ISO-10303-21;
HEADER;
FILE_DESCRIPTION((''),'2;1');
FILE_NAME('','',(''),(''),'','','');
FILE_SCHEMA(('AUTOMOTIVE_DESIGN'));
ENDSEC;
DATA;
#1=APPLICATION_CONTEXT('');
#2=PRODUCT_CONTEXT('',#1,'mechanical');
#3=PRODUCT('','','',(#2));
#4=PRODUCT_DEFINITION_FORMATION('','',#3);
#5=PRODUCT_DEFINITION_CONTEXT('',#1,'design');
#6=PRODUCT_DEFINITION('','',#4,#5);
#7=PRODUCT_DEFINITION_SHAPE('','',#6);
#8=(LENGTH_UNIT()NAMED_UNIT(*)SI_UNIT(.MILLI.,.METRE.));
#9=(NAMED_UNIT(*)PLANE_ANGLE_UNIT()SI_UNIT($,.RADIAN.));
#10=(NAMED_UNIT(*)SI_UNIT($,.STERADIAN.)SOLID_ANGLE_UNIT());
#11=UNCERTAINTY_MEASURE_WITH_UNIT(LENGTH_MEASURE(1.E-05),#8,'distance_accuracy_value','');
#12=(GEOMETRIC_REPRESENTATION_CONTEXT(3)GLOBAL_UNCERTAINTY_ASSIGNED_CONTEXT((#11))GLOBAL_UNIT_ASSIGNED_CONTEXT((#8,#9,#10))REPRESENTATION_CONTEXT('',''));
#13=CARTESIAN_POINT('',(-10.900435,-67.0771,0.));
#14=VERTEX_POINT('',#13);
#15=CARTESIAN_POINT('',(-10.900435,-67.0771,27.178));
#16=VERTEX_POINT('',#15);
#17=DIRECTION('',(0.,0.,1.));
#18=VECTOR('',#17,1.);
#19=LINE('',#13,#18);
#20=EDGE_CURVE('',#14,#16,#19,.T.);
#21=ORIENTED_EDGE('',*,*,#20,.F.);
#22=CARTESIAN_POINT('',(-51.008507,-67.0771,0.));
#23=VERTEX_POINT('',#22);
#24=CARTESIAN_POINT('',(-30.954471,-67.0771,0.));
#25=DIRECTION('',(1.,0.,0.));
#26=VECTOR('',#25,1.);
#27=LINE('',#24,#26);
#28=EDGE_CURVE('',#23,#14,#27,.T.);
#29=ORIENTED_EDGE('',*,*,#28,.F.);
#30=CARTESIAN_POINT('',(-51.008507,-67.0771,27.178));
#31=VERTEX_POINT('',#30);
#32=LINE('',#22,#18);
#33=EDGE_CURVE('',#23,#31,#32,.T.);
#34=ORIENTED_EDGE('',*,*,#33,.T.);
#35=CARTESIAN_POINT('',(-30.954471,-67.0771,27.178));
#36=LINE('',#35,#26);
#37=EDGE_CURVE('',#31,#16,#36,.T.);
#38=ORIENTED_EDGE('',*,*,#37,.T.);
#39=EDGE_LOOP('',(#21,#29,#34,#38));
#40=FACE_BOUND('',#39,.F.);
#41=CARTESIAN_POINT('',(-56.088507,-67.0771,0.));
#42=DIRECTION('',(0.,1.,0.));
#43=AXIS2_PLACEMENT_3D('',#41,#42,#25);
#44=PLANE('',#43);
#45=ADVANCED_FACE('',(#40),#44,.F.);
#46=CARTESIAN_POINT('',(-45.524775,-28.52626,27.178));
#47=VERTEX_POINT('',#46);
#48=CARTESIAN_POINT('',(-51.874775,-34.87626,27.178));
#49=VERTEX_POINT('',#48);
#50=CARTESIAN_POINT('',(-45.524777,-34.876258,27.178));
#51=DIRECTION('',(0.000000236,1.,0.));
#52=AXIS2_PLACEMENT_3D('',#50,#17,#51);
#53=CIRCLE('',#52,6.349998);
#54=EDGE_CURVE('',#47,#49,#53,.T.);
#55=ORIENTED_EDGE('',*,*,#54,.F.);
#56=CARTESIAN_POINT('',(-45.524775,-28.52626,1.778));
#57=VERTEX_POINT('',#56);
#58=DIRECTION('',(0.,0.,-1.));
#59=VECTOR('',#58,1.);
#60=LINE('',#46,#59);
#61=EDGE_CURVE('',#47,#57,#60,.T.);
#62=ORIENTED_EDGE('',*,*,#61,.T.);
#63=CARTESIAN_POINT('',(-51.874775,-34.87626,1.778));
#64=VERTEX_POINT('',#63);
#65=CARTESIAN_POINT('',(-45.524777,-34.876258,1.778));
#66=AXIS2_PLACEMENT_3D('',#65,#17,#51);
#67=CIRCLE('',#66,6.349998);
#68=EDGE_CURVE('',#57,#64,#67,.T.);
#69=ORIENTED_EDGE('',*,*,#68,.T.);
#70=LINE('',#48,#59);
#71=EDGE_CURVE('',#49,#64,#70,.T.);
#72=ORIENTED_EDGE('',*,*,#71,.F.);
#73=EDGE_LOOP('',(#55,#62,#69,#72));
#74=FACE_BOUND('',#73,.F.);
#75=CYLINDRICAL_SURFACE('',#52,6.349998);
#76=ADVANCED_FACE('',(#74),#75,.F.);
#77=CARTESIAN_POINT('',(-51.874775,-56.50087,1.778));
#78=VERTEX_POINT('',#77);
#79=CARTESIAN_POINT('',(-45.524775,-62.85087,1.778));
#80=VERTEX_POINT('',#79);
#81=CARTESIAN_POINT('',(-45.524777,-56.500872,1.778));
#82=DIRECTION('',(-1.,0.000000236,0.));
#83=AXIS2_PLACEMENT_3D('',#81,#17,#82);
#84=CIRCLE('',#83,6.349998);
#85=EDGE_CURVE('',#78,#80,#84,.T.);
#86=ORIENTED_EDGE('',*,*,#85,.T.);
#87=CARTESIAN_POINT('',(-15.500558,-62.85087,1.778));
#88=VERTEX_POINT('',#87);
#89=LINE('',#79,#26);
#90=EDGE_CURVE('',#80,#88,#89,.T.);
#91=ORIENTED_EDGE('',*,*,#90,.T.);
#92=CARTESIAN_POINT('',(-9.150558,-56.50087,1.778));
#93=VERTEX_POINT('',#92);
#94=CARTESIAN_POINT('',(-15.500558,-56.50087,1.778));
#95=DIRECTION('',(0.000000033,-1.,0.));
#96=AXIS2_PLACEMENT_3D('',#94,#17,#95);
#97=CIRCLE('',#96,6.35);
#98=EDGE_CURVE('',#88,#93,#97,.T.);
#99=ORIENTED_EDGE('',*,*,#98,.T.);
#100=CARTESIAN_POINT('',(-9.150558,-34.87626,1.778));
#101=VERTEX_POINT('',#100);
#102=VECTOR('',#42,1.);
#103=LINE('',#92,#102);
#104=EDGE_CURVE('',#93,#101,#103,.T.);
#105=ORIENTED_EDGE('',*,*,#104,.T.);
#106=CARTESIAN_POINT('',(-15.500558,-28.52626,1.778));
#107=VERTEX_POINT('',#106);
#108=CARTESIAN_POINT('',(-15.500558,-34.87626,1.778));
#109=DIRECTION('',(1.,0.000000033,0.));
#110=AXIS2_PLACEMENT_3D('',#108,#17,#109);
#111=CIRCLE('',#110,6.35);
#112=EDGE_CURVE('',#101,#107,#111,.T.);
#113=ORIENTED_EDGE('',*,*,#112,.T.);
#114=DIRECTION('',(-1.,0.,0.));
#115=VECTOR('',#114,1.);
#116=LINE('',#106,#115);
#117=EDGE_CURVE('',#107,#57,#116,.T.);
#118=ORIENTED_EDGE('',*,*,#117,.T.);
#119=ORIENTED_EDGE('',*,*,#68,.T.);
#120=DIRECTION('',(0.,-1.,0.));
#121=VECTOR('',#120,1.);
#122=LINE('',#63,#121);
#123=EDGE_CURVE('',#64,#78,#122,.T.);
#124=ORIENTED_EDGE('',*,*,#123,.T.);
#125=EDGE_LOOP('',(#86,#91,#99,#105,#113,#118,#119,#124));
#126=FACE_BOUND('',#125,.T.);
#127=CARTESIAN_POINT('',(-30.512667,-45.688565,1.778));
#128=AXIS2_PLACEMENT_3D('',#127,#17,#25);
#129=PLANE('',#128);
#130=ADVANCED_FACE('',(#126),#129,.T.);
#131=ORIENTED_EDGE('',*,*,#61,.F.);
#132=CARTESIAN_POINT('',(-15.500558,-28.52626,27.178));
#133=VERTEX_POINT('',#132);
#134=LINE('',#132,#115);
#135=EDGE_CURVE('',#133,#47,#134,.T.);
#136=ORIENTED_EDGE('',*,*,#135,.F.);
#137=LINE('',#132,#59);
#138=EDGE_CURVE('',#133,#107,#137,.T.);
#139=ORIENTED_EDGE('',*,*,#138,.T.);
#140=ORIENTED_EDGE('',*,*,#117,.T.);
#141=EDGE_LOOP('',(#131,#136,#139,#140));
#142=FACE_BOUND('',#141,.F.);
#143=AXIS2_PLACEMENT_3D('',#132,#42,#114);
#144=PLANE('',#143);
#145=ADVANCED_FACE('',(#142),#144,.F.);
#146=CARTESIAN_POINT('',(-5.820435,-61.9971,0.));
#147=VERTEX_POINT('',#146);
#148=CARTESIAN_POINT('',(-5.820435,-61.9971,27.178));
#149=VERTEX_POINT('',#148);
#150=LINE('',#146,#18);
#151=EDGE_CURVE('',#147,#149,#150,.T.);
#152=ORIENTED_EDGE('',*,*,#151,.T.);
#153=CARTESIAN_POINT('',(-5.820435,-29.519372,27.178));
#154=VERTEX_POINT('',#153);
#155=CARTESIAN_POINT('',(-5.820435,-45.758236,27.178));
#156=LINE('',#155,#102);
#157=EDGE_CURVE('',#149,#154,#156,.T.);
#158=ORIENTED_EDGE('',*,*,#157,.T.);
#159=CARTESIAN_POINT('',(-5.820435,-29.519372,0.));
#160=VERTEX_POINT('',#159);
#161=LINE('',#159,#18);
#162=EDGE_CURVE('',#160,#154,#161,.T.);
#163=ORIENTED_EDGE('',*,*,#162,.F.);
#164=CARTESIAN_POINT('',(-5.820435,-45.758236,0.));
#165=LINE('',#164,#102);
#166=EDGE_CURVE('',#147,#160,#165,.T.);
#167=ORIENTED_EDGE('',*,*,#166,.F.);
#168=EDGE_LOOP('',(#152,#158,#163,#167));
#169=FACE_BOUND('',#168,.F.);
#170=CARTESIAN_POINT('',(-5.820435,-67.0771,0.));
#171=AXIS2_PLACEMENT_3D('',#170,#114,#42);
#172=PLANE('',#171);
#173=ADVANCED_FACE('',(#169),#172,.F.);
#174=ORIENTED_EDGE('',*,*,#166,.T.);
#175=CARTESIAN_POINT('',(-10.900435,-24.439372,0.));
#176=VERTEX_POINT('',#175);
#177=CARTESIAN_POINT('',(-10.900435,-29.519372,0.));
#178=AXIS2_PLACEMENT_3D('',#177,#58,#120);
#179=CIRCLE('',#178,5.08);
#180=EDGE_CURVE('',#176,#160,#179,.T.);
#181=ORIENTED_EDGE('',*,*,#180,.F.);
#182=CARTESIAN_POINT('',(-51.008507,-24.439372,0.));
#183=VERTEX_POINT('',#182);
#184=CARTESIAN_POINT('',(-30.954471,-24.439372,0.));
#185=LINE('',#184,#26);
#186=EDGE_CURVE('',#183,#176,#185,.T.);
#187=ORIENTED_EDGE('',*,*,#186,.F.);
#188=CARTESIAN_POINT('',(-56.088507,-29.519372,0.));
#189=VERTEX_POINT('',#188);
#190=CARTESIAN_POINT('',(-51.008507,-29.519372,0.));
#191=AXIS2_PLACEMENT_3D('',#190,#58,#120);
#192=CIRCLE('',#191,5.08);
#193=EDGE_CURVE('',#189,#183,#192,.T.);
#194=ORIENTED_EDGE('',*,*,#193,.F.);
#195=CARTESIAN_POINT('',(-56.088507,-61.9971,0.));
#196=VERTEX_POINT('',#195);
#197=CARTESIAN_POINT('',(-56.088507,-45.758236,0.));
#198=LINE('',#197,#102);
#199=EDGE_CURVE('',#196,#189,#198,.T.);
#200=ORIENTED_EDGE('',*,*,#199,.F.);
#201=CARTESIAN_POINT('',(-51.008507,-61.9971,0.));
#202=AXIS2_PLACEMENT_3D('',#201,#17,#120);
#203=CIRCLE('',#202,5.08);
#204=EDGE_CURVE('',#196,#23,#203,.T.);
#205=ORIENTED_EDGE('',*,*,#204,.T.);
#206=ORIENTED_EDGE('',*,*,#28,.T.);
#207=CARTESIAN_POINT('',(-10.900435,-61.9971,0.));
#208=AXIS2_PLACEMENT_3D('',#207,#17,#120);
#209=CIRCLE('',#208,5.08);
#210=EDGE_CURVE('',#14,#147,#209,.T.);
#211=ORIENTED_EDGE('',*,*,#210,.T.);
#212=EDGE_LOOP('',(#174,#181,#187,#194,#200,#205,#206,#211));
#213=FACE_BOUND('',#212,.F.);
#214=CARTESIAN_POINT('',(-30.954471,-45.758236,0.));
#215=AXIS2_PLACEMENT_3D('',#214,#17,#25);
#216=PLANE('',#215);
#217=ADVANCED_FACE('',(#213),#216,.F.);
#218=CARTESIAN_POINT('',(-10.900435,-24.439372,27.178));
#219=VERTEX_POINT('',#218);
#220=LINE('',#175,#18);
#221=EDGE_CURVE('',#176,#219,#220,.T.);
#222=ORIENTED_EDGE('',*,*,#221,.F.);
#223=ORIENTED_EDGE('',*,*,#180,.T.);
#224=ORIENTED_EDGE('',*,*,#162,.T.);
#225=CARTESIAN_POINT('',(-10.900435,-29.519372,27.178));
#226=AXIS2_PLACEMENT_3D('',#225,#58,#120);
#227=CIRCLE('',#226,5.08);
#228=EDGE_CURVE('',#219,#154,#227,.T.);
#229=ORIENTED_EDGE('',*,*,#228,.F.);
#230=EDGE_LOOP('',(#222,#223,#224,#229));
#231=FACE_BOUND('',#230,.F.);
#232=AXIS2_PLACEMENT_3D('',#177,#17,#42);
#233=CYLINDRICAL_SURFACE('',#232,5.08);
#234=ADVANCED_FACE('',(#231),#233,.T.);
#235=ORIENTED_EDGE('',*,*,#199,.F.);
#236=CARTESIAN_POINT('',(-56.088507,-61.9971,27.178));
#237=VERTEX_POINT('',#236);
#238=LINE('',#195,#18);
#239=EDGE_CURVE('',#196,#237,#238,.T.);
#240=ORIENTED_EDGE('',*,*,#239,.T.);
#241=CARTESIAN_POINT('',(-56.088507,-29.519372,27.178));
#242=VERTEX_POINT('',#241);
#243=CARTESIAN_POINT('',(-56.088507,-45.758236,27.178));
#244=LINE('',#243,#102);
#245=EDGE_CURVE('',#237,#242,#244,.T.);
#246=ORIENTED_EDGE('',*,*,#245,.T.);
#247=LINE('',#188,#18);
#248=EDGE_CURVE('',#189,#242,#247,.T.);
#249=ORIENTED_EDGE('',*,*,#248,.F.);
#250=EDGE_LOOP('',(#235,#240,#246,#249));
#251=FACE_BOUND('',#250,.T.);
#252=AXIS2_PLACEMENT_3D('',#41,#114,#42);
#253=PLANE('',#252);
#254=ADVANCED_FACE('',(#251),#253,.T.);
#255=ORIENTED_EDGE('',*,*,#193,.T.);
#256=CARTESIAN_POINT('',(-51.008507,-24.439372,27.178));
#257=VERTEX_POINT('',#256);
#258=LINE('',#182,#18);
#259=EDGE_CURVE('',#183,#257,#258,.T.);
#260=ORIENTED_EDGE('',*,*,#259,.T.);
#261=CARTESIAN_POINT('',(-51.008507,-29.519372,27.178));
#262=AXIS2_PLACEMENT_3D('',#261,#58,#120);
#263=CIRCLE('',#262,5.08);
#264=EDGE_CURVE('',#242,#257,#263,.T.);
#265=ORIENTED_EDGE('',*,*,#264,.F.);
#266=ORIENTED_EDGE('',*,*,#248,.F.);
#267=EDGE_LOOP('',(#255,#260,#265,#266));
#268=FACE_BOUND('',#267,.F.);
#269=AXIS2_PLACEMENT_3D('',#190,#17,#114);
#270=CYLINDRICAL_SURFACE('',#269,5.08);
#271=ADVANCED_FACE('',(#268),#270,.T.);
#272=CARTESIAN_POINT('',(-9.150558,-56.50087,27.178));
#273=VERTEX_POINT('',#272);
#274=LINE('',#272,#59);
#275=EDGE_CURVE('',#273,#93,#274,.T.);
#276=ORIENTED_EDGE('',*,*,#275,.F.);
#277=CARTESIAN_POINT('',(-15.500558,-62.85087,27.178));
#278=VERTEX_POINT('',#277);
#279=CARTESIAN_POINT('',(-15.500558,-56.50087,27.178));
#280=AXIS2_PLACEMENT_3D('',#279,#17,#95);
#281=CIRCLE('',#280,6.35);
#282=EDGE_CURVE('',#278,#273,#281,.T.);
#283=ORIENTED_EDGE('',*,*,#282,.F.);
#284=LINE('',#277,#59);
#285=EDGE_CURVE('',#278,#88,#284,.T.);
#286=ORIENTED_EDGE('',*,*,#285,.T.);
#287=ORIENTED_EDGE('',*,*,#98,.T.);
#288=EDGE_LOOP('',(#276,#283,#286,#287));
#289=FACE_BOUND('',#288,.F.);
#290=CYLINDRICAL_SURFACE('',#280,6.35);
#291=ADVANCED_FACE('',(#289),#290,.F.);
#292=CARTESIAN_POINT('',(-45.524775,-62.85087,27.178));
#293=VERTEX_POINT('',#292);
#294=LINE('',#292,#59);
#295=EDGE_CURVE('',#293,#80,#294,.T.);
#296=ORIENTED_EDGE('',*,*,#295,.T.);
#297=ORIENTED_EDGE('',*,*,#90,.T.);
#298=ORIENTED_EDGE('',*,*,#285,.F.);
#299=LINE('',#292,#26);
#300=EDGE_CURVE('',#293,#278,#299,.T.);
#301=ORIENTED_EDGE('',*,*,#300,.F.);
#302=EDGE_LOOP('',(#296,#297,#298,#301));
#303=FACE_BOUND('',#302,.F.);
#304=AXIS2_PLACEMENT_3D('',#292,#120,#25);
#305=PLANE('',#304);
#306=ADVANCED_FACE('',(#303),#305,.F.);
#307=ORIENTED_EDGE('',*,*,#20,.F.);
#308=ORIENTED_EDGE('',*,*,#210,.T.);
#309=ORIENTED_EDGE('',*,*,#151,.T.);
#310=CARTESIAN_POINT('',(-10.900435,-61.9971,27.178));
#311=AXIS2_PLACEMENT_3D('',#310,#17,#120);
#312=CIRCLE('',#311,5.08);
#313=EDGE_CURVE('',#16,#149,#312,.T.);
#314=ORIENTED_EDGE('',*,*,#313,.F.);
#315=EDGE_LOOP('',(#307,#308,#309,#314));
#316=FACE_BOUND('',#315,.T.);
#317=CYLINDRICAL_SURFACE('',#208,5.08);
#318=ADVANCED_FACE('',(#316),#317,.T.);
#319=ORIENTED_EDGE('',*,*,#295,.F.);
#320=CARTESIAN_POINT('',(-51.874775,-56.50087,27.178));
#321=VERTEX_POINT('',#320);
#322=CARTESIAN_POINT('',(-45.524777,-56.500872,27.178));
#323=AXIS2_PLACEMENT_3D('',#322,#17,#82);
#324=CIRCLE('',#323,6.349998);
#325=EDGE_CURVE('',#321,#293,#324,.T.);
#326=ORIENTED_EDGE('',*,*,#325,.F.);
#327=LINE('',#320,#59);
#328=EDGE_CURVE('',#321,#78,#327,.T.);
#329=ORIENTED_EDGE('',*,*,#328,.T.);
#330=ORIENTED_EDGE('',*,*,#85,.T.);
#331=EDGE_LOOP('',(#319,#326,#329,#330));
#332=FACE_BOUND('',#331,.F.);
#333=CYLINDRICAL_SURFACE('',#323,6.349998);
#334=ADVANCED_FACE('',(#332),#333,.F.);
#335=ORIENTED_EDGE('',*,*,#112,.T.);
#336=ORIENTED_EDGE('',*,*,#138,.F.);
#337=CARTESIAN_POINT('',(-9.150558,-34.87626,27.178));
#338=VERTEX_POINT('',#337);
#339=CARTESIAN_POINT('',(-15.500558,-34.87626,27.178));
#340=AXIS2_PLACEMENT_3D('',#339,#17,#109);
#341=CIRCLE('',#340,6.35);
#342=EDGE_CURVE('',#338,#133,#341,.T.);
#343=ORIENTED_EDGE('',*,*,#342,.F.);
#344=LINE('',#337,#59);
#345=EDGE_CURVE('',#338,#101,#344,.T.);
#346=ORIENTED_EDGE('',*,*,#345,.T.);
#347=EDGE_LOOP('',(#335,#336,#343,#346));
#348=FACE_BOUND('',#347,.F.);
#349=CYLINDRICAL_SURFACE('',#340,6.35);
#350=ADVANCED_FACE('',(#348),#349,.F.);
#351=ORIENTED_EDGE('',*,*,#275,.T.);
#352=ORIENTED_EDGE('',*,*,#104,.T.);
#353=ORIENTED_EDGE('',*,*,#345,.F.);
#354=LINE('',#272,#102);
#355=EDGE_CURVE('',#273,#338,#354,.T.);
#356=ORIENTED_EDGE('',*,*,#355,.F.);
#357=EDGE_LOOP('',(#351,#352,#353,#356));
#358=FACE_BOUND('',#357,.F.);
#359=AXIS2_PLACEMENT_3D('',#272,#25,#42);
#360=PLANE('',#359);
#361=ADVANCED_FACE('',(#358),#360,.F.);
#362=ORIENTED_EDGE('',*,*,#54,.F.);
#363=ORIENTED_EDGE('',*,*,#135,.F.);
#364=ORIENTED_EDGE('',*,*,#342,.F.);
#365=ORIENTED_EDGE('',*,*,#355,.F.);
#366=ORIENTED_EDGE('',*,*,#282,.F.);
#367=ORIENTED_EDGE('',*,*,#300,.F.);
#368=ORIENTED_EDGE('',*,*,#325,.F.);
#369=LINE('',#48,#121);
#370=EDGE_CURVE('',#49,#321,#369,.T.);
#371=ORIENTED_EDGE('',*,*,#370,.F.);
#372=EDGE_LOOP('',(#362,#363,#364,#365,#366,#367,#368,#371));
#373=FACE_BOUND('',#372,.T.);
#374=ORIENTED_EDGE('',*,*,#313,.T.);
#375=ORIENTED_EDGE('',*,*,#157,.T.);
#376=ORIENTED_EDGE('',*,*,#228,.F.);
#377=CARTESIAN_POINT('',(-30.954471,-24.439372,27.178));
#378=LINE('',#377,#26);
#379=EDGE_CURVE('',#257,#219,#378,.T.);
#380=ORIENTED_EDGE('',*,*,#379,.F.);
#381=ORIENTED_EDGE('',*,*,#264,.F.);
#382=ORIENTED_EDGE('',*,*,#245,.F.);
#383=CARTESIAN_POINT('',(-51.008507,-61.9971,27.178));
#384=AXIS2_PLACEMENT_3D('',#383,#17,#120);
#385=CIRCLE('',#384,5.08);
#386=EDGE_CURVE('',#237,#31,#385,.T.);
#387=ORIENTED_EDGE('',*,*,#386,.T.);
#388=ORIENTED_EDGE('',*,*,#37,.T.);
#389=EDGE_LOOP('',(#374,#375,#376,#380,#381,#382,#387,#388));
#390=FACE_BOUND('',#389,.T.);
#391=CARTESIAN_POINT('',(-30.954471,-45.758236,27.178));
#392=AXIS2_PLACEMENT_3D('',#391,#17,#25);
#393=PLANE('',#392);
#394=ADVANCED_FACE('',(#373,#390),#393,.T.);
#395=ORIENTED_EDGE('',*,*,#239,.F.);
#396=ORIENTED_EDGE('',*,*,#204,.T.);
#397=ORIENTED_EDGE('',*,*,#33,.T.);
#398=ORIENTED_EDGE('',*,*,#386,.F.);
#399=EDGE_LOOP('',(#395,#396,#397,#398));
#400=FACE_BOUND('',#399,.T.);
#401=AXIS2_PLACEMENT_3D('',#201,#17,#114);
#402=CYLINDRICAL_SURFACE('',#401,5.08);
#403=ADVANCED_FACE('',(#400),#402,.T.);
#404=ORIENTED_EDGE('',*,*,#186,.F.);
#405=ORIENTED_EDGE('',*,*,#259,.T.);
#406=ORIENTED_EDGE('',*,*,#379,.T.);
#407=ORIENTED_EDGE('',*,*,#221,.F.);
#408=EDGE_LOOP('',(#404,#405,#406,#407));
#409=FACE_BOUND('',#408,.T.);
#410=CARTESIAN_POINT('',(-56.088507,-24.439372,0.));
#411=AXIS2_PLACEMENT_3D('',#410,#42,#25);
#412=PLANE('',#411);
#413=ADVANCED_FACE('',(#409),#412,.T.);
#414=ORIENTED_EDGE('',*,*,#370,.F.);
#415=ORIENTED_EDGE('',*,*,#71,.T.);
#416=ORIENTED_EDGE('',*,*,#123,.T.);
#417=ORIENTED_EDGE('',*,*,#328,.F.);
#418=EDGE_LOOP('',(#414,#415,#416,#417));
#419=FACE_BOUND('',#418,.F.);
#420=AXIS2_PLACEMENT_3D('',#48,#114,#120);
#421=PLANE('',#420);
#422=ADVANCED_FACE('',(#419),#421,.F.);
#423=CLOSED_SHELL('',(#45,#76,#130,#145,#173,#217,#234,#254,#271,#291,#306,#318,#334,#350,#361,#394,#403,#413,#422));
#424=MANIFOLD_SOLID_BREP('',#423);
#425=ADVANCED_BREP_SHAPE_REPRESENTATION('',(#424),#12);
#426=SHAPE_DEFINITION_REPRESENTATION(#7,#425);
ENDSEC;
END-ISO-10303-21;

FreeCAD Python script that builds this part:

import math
import FreeCAD as App
import Part
import Sketcher
from FreeCAD import Vector
Q = App.Units.Quantity


def edges_at(feature, points):
    """Names of the edges that pass closest to the given points."""
    edges = feature.Shape.Edges
    near = lambda p: min(range(len(edges)), key=lambda i: edges[i].distToShape(Part.Vertex(*p))[0])
    return sorted({f"Edge{near(p) + 1}" for p in points})

doc = App.newDocument("Part")
params = doc.addObject("Spreadsheet::Sheet", "Params")
for row, (alias, value) in enumerate([
    ("pad1_length", "1.07 in"),
    ("sketch2_radius", "0.2499999 in"),
    ("pocket1_length", "1 in"),
    ("fillet_radius", "0.2 in"),
    ("fillet2_radius", "0.2 in"),
    ("fillet3_radius", "0.2 in"),
    ("fillet4_radius", "0.2 in"),
], start=1):
    params.set(f"A{row}", alias)
    params.set(f"B{row}", "=" + value)
    params.setAlias(f"B{row}", alias)

body = doc.addObject("PartDesign::Body", "Body")

# Sketch on XY plane
sketch1 = doc.addObject("Sketcher::SketchObject", "Sketch")
body.addObject(sketch1)
sketch1.AttachmentSupport = (doc.XY_Plane, [""])
sketch1.MapMode = "FlatFace"
sketch1.addGeometry(Part.LineSegment(Vector(-56, -24, 0), Vector(-56, -67, 0)), False)
sketch1.addGeometry(Part.LineSegment(Vector(-56, -67, 0), Vector(-6, -67, 0)), False)
sketch1.addGeometry(Part.LineSegment(Vector(-6, -67, 0), Vector(-6, -24, 0)), False)
sketch1.addGeometry(Part.LineSegment(Vector(-6, -24, 0), Vector(-56, -24, 0)), False)
sketch1.addConstraint(Sketcher.Constraint("Coincident", 0, 2, 1, 1))
sketch1.addConstraint(Sketcher.Constraint("Coincident", 1, 2, 2, 1))
sketch1.addConstraint(Sketcher.Constraint("Coincident", 2, 2, 3, 1))
sketch1.addConstraint(Sketcher.Constraint("Coincident", 3, 2, 0, 1))
sketch1.addConstraint(Sketcher.Constraint("Vertical", 0))
sketch1.addConstraint(Sketcher.Constraint("Horizontal", 1))
sketch1.addConstraint(Sketcher.Constraint("Vertical", 2))
sketch1.addConstraint(Sketcher.Constraint("Horizontal", 3))
sketch1.addConstraint(Sketcher.Constraint("DistanceY", 0, 2, 0, 1, Q("42.637728 mm")))
sketch1.addConstraint(Sketcher.Constraint("DistanceY", 0, 2, -1, 1, Q("67.0771 mm")))
sketch1.addConstraint(Sketcher.Constraint("DistanceX", 1, 1, 1, 2, Q("50.268072 mm")))
sketch1.addConstraint(Sketcher.Constraint("DistanceX", 0, 2, -1, 1, Q("56.088507 mm")))
pad1 = doc.addObject("PartDesign::Pad", "Pad")
body.addObject(pad1)
pad1.Profile = sketch1
pad1.setExpression("Length", "Params.pad1_length")

# Sketch on XY plane
sketch2 = doc.addObject("Sketcher::SketchObject", "Sketch001")
body.addObject(sketch2)
sketch2.AttachmentSupport = (doc.XY_Plane, [""])
sketch2.MapMode = "FlatFace"
sketch2.AttachmentOffset = App.Placement(Vector(0, 0, 1.07 * 25.4), App.Rotation())
sketch2.addGeometry(Part.LineSegment(Vector(-16, -29, 0), Vector(-46, -29, 0)), False)
sketch2.addGeometry(Part.ArcOfCircle(Part.Circle(Vector(-46, -35, 0), Vector(0, 0, 1), 6), math.radians(90), math.radians(180)), False)
sketch2.addGeometry(Part.LineSegment(Vector(-52, -35, 0), Vector(-52, -57, 0)), False)
sketch2.addGeometry(Part.ArcOfCircle(Part.Circle(Vector(-46, -57, 0), Vector(0, 0, 1), 6), math.radians(180), math.radians(270)), False)
sketch2.addGeometry(Part.LineSegment(Vector(-46, -63, 0), Vector(-16, -63, 0)), False)
sketch2.addGeometry(Part.ArcOfCircle(Part.Circle(Vector(-16, -57, 0), Vector(0, 0, 1), 6), math.radians(-90), math.radians(0)), False)
sketch2.addGeometry(Part.LineSegment(Vector(-9, -57, 0), Vector(-9, -35, 0)), False)
sketch2.addGeometry(Part.ArcOfCircle(Part.Circle(Vector(-16, -35, 0), Vector(0, 0, 1), 6), math.radians(0), math.radians(90)), False)
sketch2.addConstraint(Sketcher.Constraint("Tangent", 0, 2, 1, 1))
sketch2.addConstraint(Sketcher.Constraint("Tangent", 1, 2, 2, 1))
sketch2.addConstraint(Sketcher.Constraint("Tangent", 2, 2, 3, 1))
sketch2.addConstraint(Sketcher.Constraint("Tangent", 3, 2, 4, 1))
sketch2.addConstraint(Sketcher.Constraint("Tangent", 4, 2, 5, 1))
sketch2.addConstraint(Sketcher.Constraint("Tangent", 5, 2, 6, 1))
sketch2.addConstraint(Sketcher.Constraint("Tangent", 6, 2, 7, 1))
sketch2.addConstraint(Sketcher.Constraint("Tangent", 7, 2, 0, 1))
sketch2.addConstraint(Sketcher.Constraint("Horizontal", 0))
sketch2.addConstraint(Sketcher.Constraint("Vertical", 2))
sketch2.addConstraint(Sketcher.Constraint("Horizontal", 4))
sketch2.addConstraint(Sketcher.Constraint("Vertical", 6))
sketch2.addConstraint(Sketcher.Constraint("Equal", 1, 3))
sketch2.addConstraint(Sketcher.Constraint("Equal", 3, 5))
sketch2.addConstraint(Sketcher.Constraint("Equal", 5, 7))
sketch2.addConstraint(Sketcher.Constraint("Radius", 1, Q("0.2499999 in")))
sketch2.addConstraint(Sketcher.Constraint("DistanceY", 2, 2, 2, 1, Q("21.62461 mm")))
sketch2.addConstraint(Sketcher.Constraint("DistanceX", 0, 2, 0, 1, Q("30.024217 mm")))
sketch2.addConstraint(Sketcher.Constraint("DistanceY", 1, 3, -1, 1, Q("34.876258 mm")))
sketch2.addConstraint(Sketcher.Constraint("DistanceX", 5, 3, -1, 1, Q("15.500558 mm")))
sketch2.setExpression("Constraints[15]", "Params.sketch2_radius")
pocket1 = doc.addObject("PartDesign::Pocket", "Pocket")
body.addObject(pocket1)
pocket1.Profile = sketch2
pocket1.setExpression("Length", "Params.pocket1_length")
doc.recompute()

fillet = doc.addObject("PartDesign::Fillet", "Fillet")
body.addObject(fillet)
fillet.Base = (pocket1, edges_at(pocket1, [(-56.089, -67.077, 13.589)]))
fillet.setExpression("Radius", "Params.fillet_radius")
doc.recompute()

fillet2 = doc.addObject("PartDesign::Fillet", "Fillet001")
body.addObject(fillet2)
fillet2.Base = (fillet, edges_at(fillet, [(-5.82, -67.077, 13.589)]))
fillet2.setExpression("Radius", "Params.fillet2_radius")
doc.recompute()

fillet3 = doc.addObject("PartDesign::Fillet", "Fillet002")
body.addObject(fillet3)
fillet3.Base = (fillet2, edges_at(fillet2, [(-56.089, -24.439, 13.589)]))
fillet3.setExpression("Radius", "Params.fillet3_radius")
doc.recompute()

fillet4 = doc.addObject("PartDesign::Fillet", "Fillet003")
body.addObject(fillet4)
fillet4.Base = (fillet3, edges_at(fillet3, [(-5.82, -24.439, 13.589)]))
fillet4.setExpression("Radius", "Params.fillet4_radius")

doc.recompute()
